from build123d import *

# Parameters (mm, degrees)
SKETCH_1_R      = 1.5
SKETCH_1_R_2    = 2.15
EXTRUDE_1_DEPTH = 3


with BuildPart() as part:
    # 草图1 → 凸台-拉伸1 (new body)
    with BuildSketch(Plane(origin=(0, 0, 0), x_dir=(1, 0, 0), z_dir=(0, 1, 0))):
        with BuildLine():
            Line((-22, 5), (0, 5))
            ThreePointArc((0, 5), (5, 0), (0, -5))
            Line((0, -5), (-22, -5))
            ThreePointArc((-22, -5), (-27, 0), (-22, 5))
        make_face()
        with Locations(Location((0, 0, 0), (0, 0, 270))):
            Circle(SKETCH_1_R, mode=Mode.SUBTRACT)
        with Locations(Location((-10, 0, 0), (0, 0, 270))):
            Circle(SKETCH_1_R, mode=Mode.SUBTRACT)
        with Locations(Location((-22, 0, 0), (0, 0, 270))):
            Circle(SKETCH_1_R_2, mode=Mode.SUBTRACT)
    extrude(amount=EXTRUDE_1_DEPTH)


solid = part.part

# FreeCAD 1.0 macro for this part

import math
import FreeCAD as App
import Part
import Sketcher

doc = App.newDocument("Part")
params = doc.addObject("Spreadsheet::Sheet", "Params")
for row, (alias, value) in enumerate([
    ("sketch1_diameter", "3 mm"),
    ("sketch1_radius", "5 mm"),
    ("sketch1_diameter2", "4.3 mm"),
    ("sketch1_width", "22 mm"),
    ("pad1_length", "3 mm"),
], start=1):
    params.set(f"A{row}", alias)
    params.set(f"B{row}", "=" + value)
    params.setAlias(f"B{row}", alias)

body = doc.addObject("PartDesign::Body", "Body")

# Sketch on XZ plane
sketch1 = body.newObject("Sketcher::SketchObject", "Sketch")
sketch1.AttachmentSupport = (doc.getObject("XZ_Plane"), [""])
sketch1.MapMode = "FlatFace"
sketch1.addGeometry([
    Part.LineSegment(App.Vector(0, -5, 0), App.Vector(-22, -5, 0)),  # 0
    Part.ArcOfCircle(Part.Circle(App.Vector(-22, 0, 0), App.Vector(0, 0, 1), 5), math.radians(90), math.radians(270)),  # 1
    Part.LineSegment(App.Vector(-22, 5, 0), App.Vector(0, 5, 0)),  # 2
    Part.ArcOfCircle(Part.Circle(App.Vector(0, 0, 0), App.Vector(0, 0, 1), 5), math.radians(-90), math.radians(90)),  # 3
    Part.Circle(App.Vector(0, 0, 0), App.Vector(0, 0, 1), 1.5),  # 4
    Part.Circle(App.Vector(-10, 0, 0), App.Vector(0, 0, 1), 1.5),  # 5
    Part.Circle(App.Vector(-22, 0, 0), App.Vector(0, 0, 1), 2.1),  # 6
], False)
sketch1.addConstraint([
    Sketcher.Constraint("Tangent", 0, 2, 1, 2),
    Sketcher.Constraint("Tangent", 1, 1, 2, 1),
    Sketcher.Constraint("Tangent", 2, 2, 3, 2),
    Sketcher.Constraint("Tangent", 3, 1, 0, 1),
    Sketcher.Constraint("Horizontal", 0),
    Sketcher.Constraint("Horizontal", 2),
    Sketcher.Constraint("Coincident", 3, 3, -1, 1),
    Sketcher.Constraint("Coincident", 4, 3, -1, 1),
    Sketcher.Constraint("Coincident", 6, 3, 1, 3),
    Sketcher.Constraint("Equal", 4, 5),
    Sketcher.Constraint("PointOnObject", 5, 3, -1),
    Sketcher.Constraint("Diameter", 4, 3.0),
    Sketcher.Constraint("Radius", 1, 5.0),
    Sketcher.Constraint("Diameter", 6, 4.3),
    Sketcher.Constraint("DistanceX", 0, 2, 0, 1, 22.0),
    Sketcher.Constraint("DistanceX", 5, 3, -1, 1, 10.0),
])
sketch1.setExpression("Constraints[11]", "Params.sketch1_diameter")
sketch1.setExpression("Constraints[12]", "Params.sketch1_radius")
sketch1.setExpression("Constraints[13]", "Params.sketch1_diameter2")
sketch1.setExpression("Constraints[14]", "Params.sketch1_width")
pad1 = body.newObject("PartDesign::Pad", "Pad")
pad1.Profile = sketch1
pad1.setExpression("Length", "Params.pad1_length")
pad1.Reversed = True

doc.recompute()
